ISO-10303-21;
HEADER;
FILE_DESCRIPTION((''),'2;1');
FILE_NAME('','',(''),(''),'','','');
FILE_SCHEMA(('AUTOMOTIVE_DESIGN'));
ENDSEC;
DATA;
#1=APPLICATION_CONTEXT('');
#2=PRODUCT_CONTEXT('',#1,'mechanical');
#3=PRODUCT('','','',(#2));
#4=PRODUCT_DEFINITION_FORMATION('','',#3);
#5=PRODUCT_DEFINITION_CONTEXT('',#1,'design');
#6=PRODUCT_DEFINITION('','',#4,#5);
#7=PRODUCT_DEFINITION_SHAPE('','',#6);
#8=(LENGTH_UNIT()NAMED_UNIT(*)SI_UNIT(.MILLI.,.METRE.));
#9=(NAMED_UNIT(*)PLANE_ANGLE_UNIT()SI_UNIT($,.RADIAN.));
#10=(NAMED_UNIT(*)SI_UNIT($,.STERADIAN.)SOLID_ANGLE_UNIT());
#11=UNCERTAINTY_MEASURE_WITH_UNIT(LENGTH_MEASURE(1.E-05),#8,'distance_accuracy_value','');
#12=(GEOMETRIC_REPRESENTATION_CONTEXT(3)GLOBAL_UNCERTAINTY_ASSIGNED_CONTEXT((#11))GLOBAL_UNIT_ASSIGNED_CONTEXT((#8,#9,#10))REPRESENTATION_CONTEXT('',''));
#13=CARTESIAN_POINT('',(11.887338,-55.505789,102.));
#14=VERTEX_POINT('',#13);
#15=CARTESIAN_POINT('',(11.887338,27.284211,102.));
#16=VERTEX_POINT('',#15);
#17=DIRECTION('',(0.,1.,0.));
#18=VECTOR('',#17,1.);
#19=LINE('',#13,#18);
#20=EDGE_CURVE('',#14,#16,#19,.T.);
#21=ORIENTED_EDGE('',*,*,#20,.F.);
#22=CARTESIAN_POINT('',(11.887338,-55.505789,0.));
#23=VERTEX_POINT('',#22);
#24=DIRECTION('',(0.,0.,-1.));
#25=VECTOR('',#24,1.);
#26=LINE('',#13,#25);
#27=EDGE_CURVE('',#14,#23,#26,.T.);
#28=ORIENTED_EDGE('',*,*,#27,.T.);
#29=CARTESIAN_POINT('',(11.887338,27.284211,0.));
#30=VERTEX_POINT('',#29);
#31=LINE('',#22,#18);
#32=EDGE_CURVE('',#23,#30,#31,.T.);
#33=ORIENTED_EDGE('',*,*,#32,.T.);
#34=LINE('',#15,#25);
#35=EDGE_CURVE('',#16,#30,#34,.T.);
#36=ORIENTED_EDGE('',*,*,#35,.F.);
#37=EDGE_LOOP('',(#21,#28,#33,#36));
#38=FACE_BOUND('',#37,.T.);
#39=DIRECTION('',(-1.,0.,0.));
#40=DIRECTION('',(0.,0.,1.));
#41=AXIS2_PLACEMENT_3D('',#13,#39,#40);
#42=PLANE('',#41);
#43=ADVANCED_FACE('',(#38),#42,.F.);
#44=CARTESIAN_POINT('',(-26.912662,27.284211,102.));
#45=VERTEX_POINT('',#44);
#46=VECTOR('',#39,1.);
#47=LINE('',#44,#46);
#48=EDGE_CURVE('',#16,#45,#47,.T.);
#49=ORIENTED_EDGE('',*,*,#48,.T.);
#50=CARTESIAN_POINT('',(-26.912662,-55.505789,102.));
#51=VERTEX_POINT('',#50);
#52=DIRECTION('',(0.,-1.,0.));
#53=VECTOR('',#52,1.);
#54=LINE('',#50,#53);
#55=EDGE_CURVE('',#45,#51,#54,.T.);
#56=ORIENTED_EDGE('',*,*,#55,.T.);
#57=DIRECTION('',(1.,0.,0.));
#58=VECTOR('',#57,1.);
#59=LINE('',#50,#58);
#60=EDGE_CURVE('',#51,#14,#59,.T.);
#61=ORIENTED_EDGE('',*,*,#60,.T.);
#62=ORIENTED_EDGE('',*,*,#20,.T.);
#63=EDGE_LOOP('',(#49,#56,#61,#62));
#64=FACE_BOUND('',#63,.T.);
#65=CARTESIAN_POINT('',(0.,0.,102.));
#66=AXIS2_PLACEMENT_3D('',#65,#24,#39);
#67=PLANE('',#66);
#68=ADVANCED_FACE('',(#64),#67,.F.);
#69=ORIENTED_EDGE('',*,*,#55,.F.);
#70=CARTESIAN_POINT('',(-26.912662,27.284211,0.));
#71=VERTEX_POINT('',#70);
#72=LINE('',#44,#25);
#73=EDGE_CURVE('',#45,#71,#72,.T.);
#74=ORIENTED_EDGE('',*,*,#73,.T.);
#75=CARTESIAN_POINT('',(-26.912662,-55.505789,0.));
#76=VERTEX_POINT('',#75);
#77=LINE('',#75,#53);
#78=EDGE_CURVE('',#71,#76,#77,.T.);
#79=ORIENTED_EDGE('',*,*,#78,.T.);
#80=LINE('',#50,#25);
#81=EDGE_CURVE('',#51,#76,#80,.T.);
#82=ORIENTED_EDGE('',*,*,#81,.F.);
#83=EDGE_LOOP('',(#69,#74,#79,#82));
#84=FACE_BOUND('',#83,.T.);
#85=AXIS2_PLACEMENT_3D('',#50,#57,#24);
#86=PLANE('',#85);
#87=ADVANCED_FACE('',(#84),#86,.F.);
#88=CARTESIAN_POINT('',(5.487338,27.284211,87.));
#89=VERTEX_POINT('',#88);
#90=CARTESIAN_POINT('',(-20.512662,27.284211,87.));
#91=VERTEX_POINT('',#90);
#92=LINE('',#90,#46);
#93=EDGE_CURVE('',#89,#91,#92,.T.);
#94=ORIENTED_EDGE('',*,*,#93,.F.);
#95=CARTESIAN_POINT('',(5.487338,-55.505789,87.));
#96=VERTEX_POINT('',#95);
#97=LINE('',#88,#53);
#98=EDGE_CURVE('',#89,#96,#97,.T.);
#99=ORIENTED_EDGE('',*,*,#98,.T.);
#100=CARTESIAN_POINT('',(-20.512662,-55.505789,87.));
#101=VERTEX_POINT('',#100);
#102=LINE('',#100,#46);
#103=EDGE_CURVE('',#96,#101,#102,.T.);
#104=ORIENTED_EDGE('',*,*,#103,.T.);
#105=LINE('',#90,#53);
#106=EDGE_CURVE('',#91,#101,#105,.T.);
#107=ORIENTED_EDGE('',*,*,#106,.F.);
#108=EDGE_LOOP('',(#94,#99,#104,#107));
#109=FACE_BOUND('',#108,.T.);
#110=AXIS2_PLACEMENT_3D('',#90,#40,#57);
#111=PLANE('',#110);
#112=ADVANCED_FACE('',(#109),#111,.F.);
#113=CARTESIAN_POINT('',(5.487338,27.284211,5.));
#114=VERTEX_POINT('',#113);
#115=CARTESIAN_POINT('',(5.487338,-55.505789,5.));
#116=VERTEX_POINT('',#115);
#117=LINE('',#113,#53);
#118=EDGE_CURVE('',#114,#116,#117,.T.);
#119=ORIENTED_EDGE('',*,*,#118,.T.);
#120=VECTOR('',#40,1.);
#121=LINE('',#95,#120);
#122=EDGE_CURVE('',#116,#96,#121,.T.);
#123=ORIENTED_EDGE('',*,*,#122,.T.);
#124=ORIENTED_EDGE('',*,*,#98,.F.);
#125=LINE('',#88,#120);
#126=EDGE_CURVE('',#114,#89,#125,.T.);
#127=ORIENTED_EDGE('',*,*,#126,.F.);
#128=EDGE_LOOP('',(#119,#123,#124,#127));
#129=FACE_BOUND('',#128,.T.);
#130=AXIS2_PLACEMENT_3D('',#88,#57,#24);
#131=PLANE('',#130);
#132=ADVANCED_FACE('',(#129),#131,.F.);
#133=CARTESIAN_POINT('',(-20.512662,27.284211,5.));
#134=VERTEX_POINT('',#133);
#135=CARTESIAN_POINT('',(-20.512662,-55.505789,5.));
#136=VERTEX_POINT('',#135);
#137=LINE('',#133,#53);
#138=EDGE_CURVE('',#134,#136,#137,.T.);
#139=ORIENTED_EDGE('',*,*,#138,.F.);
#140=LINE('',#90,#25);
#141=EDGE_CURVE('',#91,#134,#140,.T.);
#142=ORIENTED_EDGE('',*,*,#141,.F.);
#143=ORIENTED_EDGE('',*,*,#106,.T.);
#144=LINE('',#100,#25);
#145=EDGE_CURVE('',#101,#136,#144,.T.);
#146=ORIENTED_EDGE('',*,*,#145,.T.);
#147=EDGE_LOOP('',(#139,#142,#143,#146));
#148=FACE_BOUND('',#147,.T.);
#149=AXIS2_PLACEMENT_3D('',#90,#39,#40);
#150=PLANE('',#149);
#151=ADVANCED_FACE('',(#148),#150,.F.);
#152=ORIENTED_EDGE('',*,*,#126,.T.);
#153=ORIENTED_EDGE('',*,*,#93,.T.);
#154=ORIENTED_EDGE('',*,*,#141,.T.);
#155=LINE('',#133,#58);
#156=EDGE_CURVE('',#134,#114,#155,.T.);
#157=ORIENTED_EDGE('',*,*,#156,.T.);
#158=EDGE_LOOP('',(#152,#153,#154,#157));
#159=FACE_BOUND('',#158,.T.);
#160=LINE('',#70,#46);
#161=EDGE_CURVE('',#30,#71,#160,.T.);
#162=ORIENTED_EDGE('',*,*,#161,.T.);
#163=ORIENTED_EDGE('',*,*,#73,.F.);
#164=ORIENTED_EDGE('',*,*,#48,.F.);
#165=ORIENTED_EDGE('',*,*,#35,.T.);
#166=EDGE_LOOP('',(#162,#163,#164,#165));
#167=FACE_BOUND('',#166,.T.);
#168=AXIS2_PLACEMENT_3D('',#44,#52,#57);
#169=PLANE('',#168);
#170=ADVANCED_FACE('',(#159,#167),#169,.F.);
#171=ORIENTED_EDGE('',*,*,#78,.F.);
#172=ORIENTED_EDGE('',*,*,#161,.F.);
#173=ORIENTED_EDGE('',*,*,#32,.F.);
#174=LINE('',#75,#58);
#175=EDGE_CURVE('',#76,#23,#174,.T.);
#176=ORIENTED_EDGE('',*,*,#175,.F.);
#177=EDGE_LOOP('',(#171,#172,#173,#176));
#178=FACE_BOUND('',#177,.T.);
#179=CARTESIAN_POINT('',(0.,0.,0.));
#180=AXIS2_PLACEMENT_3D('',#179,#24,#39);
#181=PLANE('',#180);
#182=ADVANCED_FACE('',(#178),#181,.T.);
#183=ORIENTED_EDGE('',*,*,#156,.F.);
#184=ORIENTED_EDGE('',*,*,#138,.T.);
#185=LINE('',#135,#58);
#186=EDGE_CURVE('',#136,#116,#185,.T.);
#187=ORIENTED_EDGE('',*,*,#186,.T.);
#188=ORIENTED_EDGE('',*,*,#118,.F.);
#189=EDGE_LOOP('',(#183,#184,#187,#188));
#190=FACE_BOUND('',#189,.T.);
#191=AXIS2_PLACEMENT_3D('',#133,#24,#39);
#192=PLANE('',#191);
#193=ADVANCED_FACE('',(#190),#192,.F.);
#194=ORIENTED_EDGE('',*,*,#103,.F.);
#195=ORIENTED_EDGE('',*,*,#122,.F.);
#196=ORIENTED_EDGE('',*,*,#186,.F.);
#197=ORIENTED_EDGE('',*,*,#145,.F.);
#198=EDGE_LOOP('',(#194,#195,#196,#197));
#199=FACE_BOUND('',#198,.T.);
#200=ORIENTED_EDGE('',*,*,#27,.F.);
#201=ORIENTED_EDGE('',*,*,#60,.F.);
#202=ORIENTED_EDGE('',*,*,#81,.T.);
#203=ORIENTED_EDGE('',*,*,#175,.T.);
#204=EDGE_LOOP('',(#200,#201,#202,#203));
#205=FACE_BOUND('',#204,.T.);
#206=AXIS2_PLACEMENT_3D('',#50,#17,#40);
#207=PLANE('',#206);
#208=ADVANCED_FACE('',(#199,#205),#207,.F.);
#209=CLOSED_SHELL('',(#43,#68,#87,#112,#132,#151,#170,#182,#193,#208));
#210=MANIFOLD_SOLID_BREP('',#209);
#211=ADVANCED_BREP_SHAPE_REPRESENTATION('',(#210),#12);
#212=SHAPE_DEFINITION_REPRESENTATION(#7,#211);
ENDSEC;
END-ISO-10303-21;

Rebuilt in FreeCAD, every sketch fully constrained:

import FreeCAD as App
import Part
import Sketcher
from FreeCAD import Vector


def add_polygon(sketch, points):
    """Adds a closed chain of lines whose ends are joined by coincident constraints."""
    first, n = sketch.GeometryCount, len(points)
    for a, b in zip(points, points[1:] + points[:1]):
        sketch.addGeometry(Part.LineSegment(App.Vector(*a, 0), App.Vector(*b, 0)), False)
    for i in range(n):
        sketch.addConstraint(Sketcher.Constraint("Coincident", first + i, 2, first + (i + 1) % n, 1))

doc = App.newDocument("Part")
body = doc.addObject("PartDesign::Body", "Body")

# Sketch on XY plane
sketch1 = body.newObject("Sketcher::SketchObject", "Sketch")
sketch1.AttachmentSupport = (doc.getObject("XY_Plane"), [""])
sketch1.MapMode = "FlatFace"
add_polygon(sketch1, [(-26.912662, 27.284211), (-26.912662, -55.505789), (11.887338, -55.505789), (11.887338, 27.284211)])  # lines 0-3
sketch1.addConstraint(Sketcher.Constraint("Vertical", 0))
sketch1.addConstraint(Sketcher.Constraint("Horizontal", 1))
sketch1.addConstraint(Sketcher.Constraint("Vertical", 2))
sketch1.addConstraint(Sketcher.Constraint("Horizontal", 3))
sketch1.addConstraint(Sketcher.Constraint("DistanceX", 1, 1, 1, 2, 38.8))
sketch1.addConstraint(Sketcher.Constraint("DistanceY", 0, 2, 0, 1, 82.79))
sketch1.addConstraint(Sketcher.Constraint("DistanceX", 0, 2, -1, 1, 26.912662))
sketch1.addConstraint(Sketcher.Constraint("DistanceY", 0, 2, -1, 1, 55.505789))
pad1 = body.newObject("PartDesign::Pad", "Pad")
pad1.Profile = sketch1
pad1.Length = 102

# Sketch on XZ plane
sketch2 = body.newObject("Sketcher::SketchObject", "Sketch001")
sketch2.AttachmentSupport = (doc.getObject("XZ_Plane"), [""])
sketch2.MapMode = "FlatFace"
sketch2.AttachmentOffset = App.Placement(Vector(0, 0, 55.505789), App.Rotation())
add_polygon(sketch2, [(-20.512662, 87), (-20.512662, 5), (5.487338, 5), (5.487338, 87)])  # lines 0-3
sketch2.addConstraint(Sketcher.Constraint("Vertical", 0))
sketch2.addConstraint(Sketcher.Constraint("Horizontal", 1))
sketch2.addConstraint(Sketcher.Constraint("Vertical", 2))
sketch2.addConstraint(Sketcher.Constraint("Horizontal", 3))
sketch2.addConstraint(Sketcher.Constraint("DistanceX", 1, 1, 1, 2, 26.0))
sketch2.addConstraint(Sketcher.Constraint("DistanceY", 0, 2, 0, 1, 82.0))
sketch2.addConstraint(Sketcher.Constraint("DistanceY", -1, 1, 0, 2, 5.0))
sketch2.addConstraint(Sketcher.Constraint("DistanceX", 0, 2, -1, 1, 20.512662))
pocket1 = body.newObject("PartDesign::Pocket", "Pocket")
pocket1.Profile = sketch2
pocket1.Type = "ThroughAll"

doc.recompute()
